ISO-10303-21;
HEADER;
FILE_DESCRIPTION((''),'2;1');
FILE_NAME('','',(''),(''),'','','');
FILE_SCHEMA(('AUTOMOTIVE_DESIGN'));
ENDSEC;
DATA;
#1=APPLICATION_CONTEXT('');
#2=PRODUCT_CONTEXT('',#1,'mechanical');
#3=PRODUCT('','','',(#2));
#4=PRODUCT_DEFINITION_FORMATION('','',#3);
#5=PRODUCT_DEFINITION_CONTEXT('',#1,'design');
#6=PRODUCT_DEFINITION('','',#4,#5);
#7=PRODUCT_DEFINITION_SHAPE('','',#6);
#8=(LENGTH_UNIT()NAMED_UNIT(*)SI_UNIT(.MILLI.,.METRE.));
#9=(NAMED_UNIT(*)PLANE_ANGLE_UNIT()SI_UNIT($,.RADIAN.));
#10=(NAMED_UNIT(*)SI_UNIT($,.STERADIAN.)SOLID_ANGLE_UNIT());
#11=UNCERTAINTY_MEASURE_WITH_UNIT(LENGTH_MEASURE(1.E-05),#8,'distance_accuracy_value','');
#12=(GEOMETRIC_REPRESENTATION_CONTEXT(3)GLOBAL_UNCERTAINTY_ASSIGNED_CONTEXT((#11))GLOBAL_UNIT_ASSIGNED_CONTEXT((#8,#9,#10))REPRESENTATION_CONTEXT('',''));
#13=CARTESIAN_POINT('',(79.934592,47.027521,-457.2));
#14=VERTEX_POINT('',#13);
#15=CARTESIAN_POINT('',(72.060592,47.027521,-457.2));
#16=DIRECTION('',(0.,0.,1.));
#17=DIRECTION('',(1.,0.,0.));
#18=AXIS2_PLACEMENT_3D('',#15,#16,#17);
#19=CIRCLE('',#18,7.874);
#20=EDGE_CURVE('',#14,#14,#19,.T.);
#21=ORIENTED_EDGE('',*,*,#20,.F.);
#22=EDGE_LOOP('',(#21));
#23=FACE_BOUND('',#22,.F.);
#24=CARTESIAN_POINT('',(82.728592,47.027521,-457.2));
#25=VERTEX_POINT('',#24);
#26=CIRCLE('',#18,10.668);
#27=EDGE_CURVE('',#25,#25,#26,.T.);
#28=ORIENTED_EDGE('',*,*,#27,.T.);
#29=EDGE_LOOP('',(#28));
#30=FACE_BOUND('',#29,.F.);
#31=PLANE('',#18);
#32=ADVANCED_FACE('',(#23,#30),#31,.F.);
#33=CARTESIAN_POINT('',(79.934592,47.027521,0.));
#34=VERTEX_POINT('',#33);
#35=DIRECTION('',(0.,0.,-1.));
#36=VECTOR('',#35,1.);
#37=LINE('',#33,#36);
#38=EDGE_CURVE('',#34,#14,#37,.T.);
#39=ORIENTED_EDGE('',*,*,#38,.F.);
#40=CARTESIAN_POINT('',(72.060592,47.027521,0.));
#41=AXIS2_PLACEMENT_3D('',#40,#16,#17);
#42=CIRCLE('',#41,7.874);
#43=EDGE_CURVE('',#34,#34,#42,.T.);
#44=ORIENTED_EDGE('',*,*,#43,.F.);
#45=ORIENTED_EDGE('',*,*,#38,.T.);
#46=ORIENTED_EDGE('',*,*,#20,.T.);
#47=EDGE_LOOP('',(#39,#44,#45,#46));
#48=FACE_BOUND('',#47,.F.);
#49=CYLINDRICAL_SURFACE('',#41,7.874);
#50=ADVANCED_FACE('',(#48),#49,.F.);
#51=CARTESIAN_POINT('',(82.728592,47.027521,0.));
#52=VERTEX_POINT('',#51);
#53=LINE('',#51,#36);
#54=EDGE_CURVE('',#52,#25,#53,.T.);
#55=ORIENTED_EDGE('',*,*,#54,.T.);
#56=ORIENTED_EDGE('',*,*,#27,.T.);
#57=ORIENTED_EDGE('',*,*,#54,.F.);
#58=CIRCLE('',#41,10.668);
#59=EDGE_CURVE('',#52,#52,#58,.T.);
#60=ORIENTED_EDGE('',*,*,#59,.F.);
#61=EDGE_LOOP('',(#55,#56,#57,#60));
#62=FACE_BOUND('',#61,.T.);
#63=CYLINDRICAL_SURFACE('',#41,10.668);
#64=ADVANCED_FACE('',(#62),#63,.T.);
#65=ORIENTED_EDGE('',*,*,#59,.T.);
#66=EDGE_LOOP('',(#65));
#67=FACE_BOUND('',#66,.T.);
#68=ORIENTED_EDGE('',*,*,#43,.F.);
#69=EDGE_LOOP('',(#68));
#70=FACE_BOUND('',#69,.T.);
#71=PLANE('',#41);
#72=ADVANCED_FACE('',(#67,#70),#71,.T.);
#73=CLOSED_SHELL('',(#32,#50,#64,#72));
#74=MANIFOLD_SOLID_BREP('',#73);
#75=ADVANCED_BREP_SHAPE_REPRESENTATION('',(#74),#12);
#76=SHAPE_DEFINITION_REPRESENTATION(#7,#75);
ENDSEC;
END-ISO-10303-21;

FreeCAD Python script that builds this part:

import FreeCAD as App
import Part
import Sketcher
from FreeCAD import Vector
Q = App.Units.Quantity

doc = App.newDocument("Part")
params = doc.addObject("Spreadsheet::Sheet", "Params")
for row, (alias, value) in enumerate([
    ("sketch1_diameter", "0.84 in"),
    ("sketch1_diameter2", "0.62 in"),
    ("pad1_length", "18 in"),
], start=1):
    params.set(f"A{row}", alias)
    params.set(f"B{row}", "=" + value)
    params.setAlias(f"B{row}", alias)

body = doc.addObject("PartDesign::Body", "Body")

sketch1 = doc.addObject("Sketcher::SketchObject", "Sketch")
body.addObject(sketch1)
sketch1.AttachmentSupport = (doc.XY_Plane, [""])
sketch1.MapMode = "FlatFace"
sketch1.addGeometry([
    Part.Circle(Vector(72.060592, 47.027521, 0), Vector(0, 0, 1), 10.668),
    Part.Circle(Vector(72.060592, 47.027521, 0), Vector(0, 0, 1), 7.874),
], False)
sketch1.addConstraint([
    Sketcher.Constraint("Coincident", 1, 3, 0, 3),
    Sketcher.Constraint("Diameter", 0, Q("0.84 in")),
    Sketcher.Constraint("Diameter", 1, Q("0.62 in")),
    Sketcher.Constraint("DistanceX", -1, 1, 0, 3, Q("72.060592 mm")),
    Sketcher.Constraint("DistanceY", -1, 1, 0, 3, Q("47.027521 mm")),
])
sketch1.setExpression("Constraints[1]", "Params.sketch1_diameter")
sketch1.setExpression("Constraints[2]", "Params.sketch1_diameter2")
pad1 = doc.addObject("PartDesign::Pad", "Pad")
body.addObject(pad1)
pad1.Profile = sketch1
pad1.setExpression("Length", "Params.pad1_length")
pad1.Reversed = True

doc.recompute()
